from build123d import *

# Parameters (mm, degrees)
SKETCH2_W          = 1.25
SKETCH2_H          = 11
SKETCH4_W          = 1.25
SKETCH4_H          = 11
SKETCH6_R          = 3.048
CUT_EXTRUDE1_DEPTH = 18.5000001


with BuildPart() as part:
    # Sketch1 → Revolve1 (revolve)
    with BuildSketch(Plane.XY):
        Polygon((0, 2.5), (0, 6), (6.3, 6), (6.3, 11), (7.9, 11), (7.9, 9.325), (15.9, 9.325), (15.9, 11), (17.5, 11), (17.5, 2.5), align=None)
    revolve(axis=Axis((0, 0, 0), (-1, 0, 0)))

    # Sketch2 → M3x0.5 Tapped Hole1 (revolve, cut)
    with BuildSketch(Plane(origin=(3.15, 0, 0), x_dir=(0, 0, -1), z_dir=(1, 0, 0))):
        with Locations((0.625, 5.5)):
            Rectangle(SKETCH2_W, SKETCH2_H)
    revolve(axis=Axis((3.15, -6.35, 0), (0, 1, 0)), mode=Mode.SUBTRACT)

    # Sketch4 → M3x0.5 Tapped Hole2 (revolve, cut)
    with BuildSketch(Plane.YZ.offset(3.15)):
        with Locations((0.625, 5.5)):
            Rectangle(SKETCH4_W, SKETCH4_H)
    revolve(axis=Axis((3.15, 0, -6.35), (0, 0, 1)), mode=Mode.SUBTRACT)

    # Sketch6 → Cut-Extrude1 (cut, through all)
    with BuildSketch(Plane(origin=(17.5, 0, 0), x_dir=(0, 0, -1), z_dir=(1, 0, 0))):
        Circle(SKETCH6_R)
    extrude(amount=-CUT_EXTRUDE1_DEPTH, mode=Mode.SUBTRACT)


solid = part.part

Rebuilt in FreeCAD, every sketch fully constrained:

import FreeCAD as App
import Part
import Sketcher
from FreeCAD import Vector
Q = App.Units.Quantity

doc = App.newDocument("Part")
body = doc.addObject("PartDesign::Body", "Body")

sketch1 = doc.addObject("Sketcher::SketchObject", "Sketch")
body.addObject(sketch1)
sketch1.AttachmentSupport = (doc.XY_Plane, [""])
sketch1.MapMode = "FlatFace"
sketch1.addGeometry([
    Part.LineSegment(Vector(0, 6, 0), Vector(0, 2.5, 0)),
    Part.LineSegment(Vector(0, 2.5, 0), Vector(17.5, 2.5, 0)),
    Part.LineSegment(Vector(17.5, 2.5, 0), Vector(17.5, 11, 0)),
    Part.LineSegment(Vector(17.5, 11, 0), Vector(15.9, 11, 0)),
    Part.LineSegment(Vector(15.9, 11, 0), Vector(15.9, 9.3, 0)),
    Part.LineSegment(Vector(15.9, 9.3, 0), Vector(7.9, 9.3, 0)),
    Part.LineSegment(Vector(7.9, 9.3, 0), Vector(7.9, 11, 0)),
    Part.LineSegment(Vector(7.9, 11, 0), Vector(6.3, 11, 0)),
    Part.LineSegment(Vector(6.3, 11, 0), Vector(6.3, 6, 0)),
    Part.LineSegment(Vector(6.3, 6, 0), Vector(0, 6, 0)),
], False)
sketch1.addConstraint([
    Sketcher.Constraint("Coincident", 0, 2, 1, 1),
    Sketcher.Constraint("Coincident", 1, 2, 2, 1),
    Sketcher.Constraint("Coincident", 2, 2, 3, 1),
    Sketcher.Constraint("Coincident", 3, 2, 4, 1),
    Sketcher.Constraint("Coincident", 4, 2, 5, 1),
    Sketcher.Constraint("Coincident", 5, 2, 6, 1),
    Sketcher.Constraint("Coincident", 6, 2, 7, 1),
    Sketcher.Constraint("Coincident", 7, 2, 8, 1),
    Sketcher.Constraint("Coincident", 8, 2, 9, 1),
    Sketcher.Constraint("Coincident", 9, 2, 0, 1),
    Sketcher.Constraint("Vertical", 0),
    Sketcher.Constraint("Horizontal", 1),
    Sketcher.Constraint("Vertical", 2),
    Sketcher.Constraint("Horizontal", 3),
    Sketcher.Constraint("Vertical", 4),
    Sketcher.Constraint("Horizontal", 5),
    Sketcher.Constraint("Vertical", 6),
    Sketcher.Constraint("Horizontal", 7),
    Sketcher.Constraint("Vertical", 8),
    Sketcher.Constraint("Horizontal", 9),
    Sketcher.Constraint("PointOnObject", 0, 2, -2),
    Sketcher.Constraint("Horizontal", 3, 2, 6, 2),
    Sketcher.Constraint("Equal", 3, 7),
    Sketcher.Constraint("DistanceX", 5, 2, 5, 1, Q("8 mm")),
    Sketcher.Constraint("DistanceY", 8, 2, 8, 1, Q("5 mm")),
    Sketcher.Constraint("DistanceX", 1, 1, 1, 2, Q("17.5 mm")),
    Sketcher.Constraint("DistanceX", 3, 2, 3, 1, Q("1.6 mm")),
    Sketcher.Constraint("DistanceY", 0, 2, 0, 1, Q("3.5 mm")),
    Sketcher.Constraint("DistanceY", -1, 1, 2, 2, Q("11 mm")),
    Sketcher.Constraint("DistanceY", 4, 2, 4, 1, Q("1.675 mm")),
])
revolution = doc.addObject("PartDesign::Revolution", "Revolution")
body.addObject(revolution)
revolution.Profile = sketch1
revolution.ReferenceAxis = (sketch1, ["H_Axis"])
revolution.Angle = 360

sketch2 = doc.addObject("Sketcher::SketchObject", "Sketch001")
body.addObject(sketch2)
sketch2.AttachmentSupport = (doc.YZ_Plane, [""])
sketch2.MapMode = "FlatFace"
sketch2.AttachmentOffset = App.Placement(Vector(0, 0, 3.15), App.Rotation())
sketch2.addGeometry([
    Part.LineSegment(Vector(11, 0, 0), Vector(0, 0, 0)),
    Part.LineSegment(Vector(0, 0, 0), Vector(0, -1.2, 0)),
    Part.LineSegment(Vector(0, -1.2, 0), Vector(11, -1.2, 0)),
    Part.LineSegment(Vector(11, -1.2, 0), Vector(11, 0, 0)),
], False)
sketch2.addConstraint([
    Sketcher.Constraint("Coincident", 0, 2, 1, 1),
    Sketcher.Constraint("Coincident", 1, 2, 2, 1),
    Sketcher.Constraint("Coincident", 2, 2, 3, 1),
    Sketcher.Constraint("Coincident", 3, 2, 0, 1),
    Sketcher.Constraint("Horizontal", 0),
    Sketcher.Constraint("Vertical", 1),
    Sketcher.Constraint("Horizontal", 2),
    Sketcher.Constraint("Vertical", 3),
    Sketcher.Constraint("Coincident", 0, 2, -1, 1),
    Sketcher.Constraint("DistanceX", 0, 2, 0, 1, Q("11 mm")),
    Sketcher.Constraint("DistanceY", 1, 2, 1, 1, Q("1.25 mm")),
])
groove = doc.addObject("PartDesign::Groove", "Groove")
body.addObject(groove)
groove.Profile = sketch2
groove.ReferenceAxis = (sketch2, ["H_Axis"])
groove.Angle = 360

sketch3 = doc.addObject("Sketcher::SketchObject", "Sketch002")
body.addObject(sketch3)
sketch3.AttachmentSupport = (doc.YZ_Plane, [""])
sketch3.MapMode = "FlatFace"
sketch3.AttachmentOffset = App.Placement(Vector(0, 0, 3.15), App.Rotation())
sketch3.addGeometry([
    Part.LineSegment(Vector(0, 11, 0), Vector(0, 0, 0)),
    Part.LineSegment(Vector(0, 0, 0), Vector(1.2, 0, 0)),
    Part.LineSegment(Vector(1.2, 0, 0), Vector(1.2, 11, 0)),
    Part.LineSegment(Vector(1.2, 11, 0), Vector(0, 11, 0)),
], False)
sketch3.addConstraint([
    Sketcher.Constraint("Coincident", 0, 2, 1, 1),
    Sketcher.Constraint("Coincident", 1, 2, 2, 1),
    Sketcher.Constraint("Coincident", 2, 2, 3, 1),
    Sketcher.Constraint("Coincident", 3, 2, 0, 1),
    Sketcher.Constraint("Vertical", 0),
    Sketcher.Constraint("Horizontal", 1),
    Sketcher.Constraint("Vertical", 2),
    Sketcher.Constraint("Horizontal", 3),
    Sketcher.Constraint("Coincident", 0, 2, -1, 1),
    Sketcher.Constraint("DistanceY", 0, 2, 0, 1, Q("11 mm")),
    Sketcher.Constraint("DistanceX", 1, 1, 1, 2, Q("1.25 mm")),
])
groove2 = doc.addObject("PartDesign::Groove", "Groove001")
body.addObject(groove2)
groove2.Profile = sketch3
groove2.ReferenceAxis = (sketch3, ["V_Axis"])
groove2.Angle = 360

sketch4 = doc.addObject("Sketcher::SketchObject", "Sketch003")
body.addObject(sketch4)
sketch4.AttachmentSupport = (doc.YZ_Plane, [""])
sketch4.MapMode = "FlatFace"
sketch4.AttachmentOffset = App.Placement(Vector(0, 0, 17.5), App.Rotation())
sketch4.addGeometry(Part.Circle(Vector(0, 0, 0), Vector(0, 0, 1), 3), False)
sketch4.addConstraint([
    Sketcher.Constraint("Coincident", 0, 3, -1, 1),
    Sketcher.Constraint("Diameter", 0, Q("6.096 mm")),
])
pocket1 = doc.addObject("PartDesign::Pocket", "Pocket")
body.addObject(pocket1)
pocket1.Profile = sketch4
pocket1.Type = "ThroughAll"

doc.recompute()
